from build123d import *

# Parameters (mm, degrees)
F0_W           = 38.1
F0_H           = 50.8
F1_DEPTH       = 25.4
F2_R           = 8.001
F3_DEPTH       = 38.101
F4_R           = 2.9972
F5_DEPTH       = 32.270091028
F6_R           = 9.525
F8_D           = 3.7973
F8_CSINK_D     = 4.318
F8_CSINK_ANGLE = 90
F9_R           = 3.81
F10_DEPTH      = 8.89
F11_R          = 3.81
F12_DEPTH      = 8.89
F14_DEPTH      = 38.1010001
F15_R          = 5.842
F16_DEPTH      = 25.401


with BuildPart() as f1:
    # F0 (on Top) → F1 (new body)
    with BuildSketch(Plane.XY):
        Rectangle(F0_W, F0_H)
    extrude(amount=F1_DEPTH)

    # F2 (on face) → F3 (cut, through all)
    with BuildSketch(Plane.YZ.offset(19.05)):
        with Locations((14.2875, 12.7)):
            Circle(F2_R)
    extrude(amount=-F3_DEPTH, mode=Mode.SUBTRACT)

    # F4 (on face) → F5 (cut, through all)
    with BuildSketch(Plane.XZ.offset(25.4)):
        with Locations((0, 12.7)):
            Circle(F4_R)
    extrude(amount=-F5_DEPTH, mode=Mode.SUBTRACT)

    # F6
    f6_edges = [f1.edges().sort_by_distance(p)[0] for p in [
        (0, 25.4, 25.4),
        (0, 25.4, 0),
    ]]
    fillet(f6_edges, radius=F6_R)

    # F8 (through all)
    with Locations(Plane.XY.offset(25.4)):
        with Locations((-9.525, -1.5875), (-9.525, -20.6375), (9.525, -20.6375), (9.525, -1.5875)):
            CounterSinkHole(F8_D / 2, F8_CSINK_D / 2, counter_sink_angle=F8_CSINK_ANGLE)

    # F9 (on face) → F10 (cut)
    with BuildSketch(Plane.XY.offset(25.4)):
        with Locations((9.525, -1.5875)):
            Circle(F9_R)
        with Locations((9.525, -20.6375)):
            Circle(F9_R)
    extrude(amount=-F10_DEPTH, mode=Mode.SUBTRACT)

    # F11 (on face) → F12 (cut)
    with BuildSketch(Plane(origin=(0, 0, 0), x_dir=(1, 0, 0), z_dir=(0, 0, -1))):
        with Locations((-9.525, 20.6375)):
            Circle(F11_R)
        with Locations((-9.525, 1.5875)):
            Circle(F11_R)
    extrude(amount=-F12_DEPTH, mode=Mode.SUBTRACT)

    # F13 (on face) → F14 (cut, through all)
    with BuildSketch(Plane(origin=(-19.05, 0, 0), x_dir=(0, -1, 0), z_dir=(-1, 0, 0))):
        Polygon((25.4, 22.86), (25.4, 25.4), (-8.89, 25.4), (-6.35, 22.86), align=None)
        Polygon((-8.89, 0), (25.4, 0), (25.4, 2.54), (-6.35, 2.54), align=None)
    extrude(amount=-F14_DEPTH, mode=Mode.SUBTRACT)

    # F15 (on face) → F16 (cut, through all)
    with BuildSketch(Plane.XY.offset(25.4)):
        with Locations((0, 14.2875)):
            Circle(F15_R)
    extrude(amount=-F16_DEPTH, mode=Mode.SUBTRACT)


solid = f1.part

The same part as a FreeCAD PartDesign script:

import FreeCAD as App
import Part
import Sketcher
Q = App.Units.Quantity


def edges_at(feature, points):
    """Names of the edges that pass closest to the given points."""
    edges = feature.Shape.Edges
    near = lambda p: min(range(len(edges)), key=lambda i: edges[i].distToShape(Part.Vertex(*p))[0])
    return sorted({f"Edge{near(p) + 1}" for p in points})

doc = App.newDocument("Part")
body = doc.addObject("PartDesign::Body", "Body")

# Sketch on XY plane
sketch1 = doc.addObject("Sketcher::SketchObject", "Sketch")
body.addObject(sketch1)
sketch1.AttachmentSupport = (doc.XY_Plane, [""])
sketch1.MapMode = "FlatFace"
sketch1.addGeometry([
    Part.LineSegment(App.Vector(-19.05, 25.4, 0), App.Vector(-19.05, -25.4, 0)),
    Part.LineSegment(App.Vector(-19.05, -25.4, 0), App.Vector(19.05, -25.4, 0)),
    Part.LineSegment(App.Vector(19.05, -25.4, 0), App.Vector(19.05, 25.4, 0)),
    Part.LineSegment(App.Vector(19.05, 25.4, 0), App.Vector(-19.05, 25.4, 0)),
], False)
sketch1.addConstraint([
    Sketcher.Constraint("Coincident", 0, 2, 1, 1),
    Sketcher.Constraint("Coincident", 1, 2, 2, 1),
    Sketcher.Constraint("Coincident", 2, 2, 3, 1),
    Sketcher.Constraint("Coincident", 3, 2, 0, 1),
    Sketcher.Constraint("Vertical", 0),
    Sketcher.Constraint("Horizontal", 1),
    Sketcher.Constraint("Vertical", 2),
    Sketcher.Constraint("Horizontal", 3),
    Sketcher.Constraint("Symmetric", 0, 2, 2, 2, -1, 1),
    Sketcher.Constraint("DistanceY", 0, 2, 0, 1, Q("2 in")),
    Sketcher.Constraint("DistanceX", 1, 1, 1, 2, Q("1.5 in")),
])
pad1 = doc.addObject("PartDesign::Pad", "Pad")
body.addObject(pad1)
pad1.Profile = sketch1
pad1.Length = Q("1 in")

# Sketch on YZ plane
sketch2 = doc.addObject("Sketcher::SketchObject", "Sketch001")
body.addObject(sketch2)
sketch2.AttachmentSupport = (doc.YZ_Plane, [""])
sketch2.MapMode = "FlatFace"
sketch2.AttachmentOffset = App.Placement(App.Vector(0, 0, 0.75 * 25.4), App.Rotation())
sketch2.addGeometry(Part.Circle(App.Vector(14.2875, 12.7, 0), App.Vector(0, 0, 1), 8.001), False)
sketch2.addConstraint([
    Sketcher.Constraint("Diameter", 0, Q("0.63 in")),
    Sketcher.Constraint("DistanceY", -1, 1, 0, 3, Q("0.5 in")),
    Sketcher.Constraint("DistanceX", -1, 1, 0, 3, Q("0.5625 in")),
])
pocket1 = doc.addObject("PartDesign::Pocket", "Pocket")
body.addObject(pocket1)
pocket1.Profile = sketch2
pocket1.Type = "ThroughAll"

# Sketch on XZ plane
sketch3 = doc.addObject("Sketcher::SketchObject", "Sketch002")
body.addObject(sketch3)
sketch3.AttachmentSupport = (doc.XZ_Plane, [""])
sketch3.MapMode = "FlatFace"
sketch3.AttachmentOffset = App.Placement(App.Vector(0, 0, 1 * 25.4), App.Rotation())
sketch3.addGeometry(Part.Circle(App.Vector(0, 12.7, 0), App.Vector(0, 0, 1), 2.9972), False)
sketch3.addConstraint([
    Sketcher.Constraint("PointOnObject", 0, 3, -2),
    Sketcher.Constraint("Diameter", 0, Q("0.236 in")),
    Sketcher.Constraint("DistanceY", -1, 1, 0, 3, Q("0.5 in")),
])
pocket2 = doc.addObject("PartDesign::Pocket", "Pocket001")
body.addObject(pocket2)
pocket2.Profile = sketch3
pocket2.Length = 32.270091
doc.recompute()

fillet = doc.addObject("PartDesign::Fillet", "Fillet")
body.addObject(fillet)
fillet.Base = (pocket2, edges_at(pocket2, [(0, 25.4, 25.4), (0, 25.4, 0)]))
fillet.Radius = Q("0.375 in")

# Sketch on XY plane
sketch4 = doc.addObject("Sketcher::SketchObject", "Sketch003")
body.addObject(sketch4)
sketch4.AttachmentSupport = (doc.XY_Plane, [""])
sketch4.MapMode = "FlatFace"
sketch4.AttachmentOffset = App.Placement(App.Vector(0, 0, 1 * 25.4), App.Rotation())
sketch4.addGeometry([
    Part.Circle(App.Vector(-9.525, -1.5875, 0), App.Vector(0, 0, 1), 1.89865),
    Part.Circle(App.Vector(-9.525, -20.6375, 0), App.Vector(0, 0, 1), 1.89865),
    Part.Circle(App.Vector(9.525, -20.6375, 0), App.Vector(0, 0, 1), 1.89865),
    Part.Circle(App.Vector(9.525, -1.5875, 0), App.Vector(0, 0, 1), 1.89865),
], False)
sketch4.addConstraint([
    Sketcher.Constraint("Equal", 0, 1),
    Sketcher.Constraint("Equal", 1, 2),
    Sketcher.Constraint("Equal", 2, 3),
    Sketcher.Constraint("Symmetric", 1, 3, 2, 3, -2),
    Sketcher.Constraint("Symmetric", 0, 3, 3, 3, -2),
    Sketcher.Constraint("Vertical", 0, 3, 1, 3),
    Sketcher.Constraint("Diameter", 0, Q("0.1495 in")),
    Sketcher.Constraint("DistanceY", 1, 3, 0, 3, Q("0.75 in")),
    Sketcher.Constraint("DistanceX", 1, 3, 2, 3, Q("0.75 in")),
    Sketcher.Constraint("DistanceY", 0, 3, -1, 1, Q("0.0625 in")),
])
doc.recompute()
hole = doc.addObject("PartDesign::Hole", "Hole")
body.addObject(hole)
hole.Profile = sketch4
hole.ThreadType = "None"
hole.Diameter = Q("0.1495 in")
hole.DepthType = "ThroughAll"
hole.HoleCutType = "Countersink"
hole.HoleCutDiameter = Q("0.17 in")
hole.HoleCutCountersinkAngle = 90

# Sketch on XY plane
sketch5 = doc.addObject("Sketcher::SketchObject", "Sketch004")
body.addObject(sketch5)
sketch5.AttachmentSupport = (doc.XY_Plane, [""])
sketch5.MapMode = "FlatFace"
sketch5.AttachmentOffset = App.Placement(App.Vector(0, 0, 1 * 25.4), App.Rotation())
sketch5.addGeometry([
    Part.Circle(App.Vector(9.525, -1.5875, 0), App.Vector(0, 0, 1), 3.81),
    Part.Circle(App.Vector(9.525, -20.6375, 0), App.Vector(0, 0, 1), 3.81),
], False)
sketch5.addConstraint([
    Sketcher.Constraint("Equal", 0, 1),
    Sketcher.Constraint("Vertical", 0, 3, 1, 3),
    Sketcher.Constraint("Diameter", 0, Q("0.3 in")),
    Sketcher.Constraint("DistanceY", 1, 3, 0, 3, Q("0.75 in")),
    Sketcher.Constraint("DistanceX", -1, 1, 0, 3, Q("0.375 in")),
    Sketcher.Constraint("DistanceY", 0, 3, -1, 1, Q("0.0625 in")),
])
pocket3 = doc.addObject("PartDesign::Pocket", "Pocket002")
body.addObject(pocket3)
pocket3.Profile = sketch5
pocket3.Length = Q("0.35 in")

# Sketch on XY plane
sketch6 = doc.addObject("Sketcher::SketchObject", "Sketch005")
body.addObject(sketch6)
sketch6.AttachmentSupport = (doc.XY_Plane, [""])
sketch6.MapMode = "FlatFace"
sketch6.addGeometry([
    Part.Circle(App.Vector(-9.525, -20.6375, 0), App.Vector(0, 0, 1), 3.81),
    Part.Circle(App.Vector(-9.525, -1.5875, 0), App.Vector(0, 0, 1), 3.81),
], False)
sketch6.addConstraint([
    Sketcher.Constraint("Equal", 0, 1),
    Sketcher.Constraint("Vertical", 0, 3, 1, 3),
    Sketcher.Constraint("Diameter", 0, Q("0.3 in")),
    Sketcher.Constraint("DistanceY", 0, 3, 1, 3, Q("0.75 in")),
    Sketcher.Constraint("DistanceX", 0, 3, -1, 1, Q("0.375 in")),
    Sketcher.Constraint("DistanceY", 0, 3, -1, 1, Q("0.8125 in")),
])
pocket4 = doc.addObject("PartDesign::Pocket", "Pocket003")
body.addObject(pocket4)
pocket4.Profile = sketch6
pocket4.Length = Q("0.35 in")
pocket4.Reversed = True

# Sketch on YZ plane
sketch7 = doc.addObject("Sketcher::SketchObject", "Sketch006")
body.addObject(sketch7)
sketch7.AttachmentSupport = (doc.YZ_Plane, [""])
sketch7.MapMode = "FlatFace"
sketch7.AttachmentOffset = App.Placement(App.Vector(0, 0, -0.75 * 25.4), App.Rotation())
sketch7.addGeometry([
    Part.LineSegment(App.Vector(-25.4, 22.86, 0), App.Vector(-25.4, 25.4, 0)),  # 0
    Part.LineSegment(App.Vector(-25.4, 25.4, 0), App.Vector(8.89, 25.4, 0)),  # 1
    Part.LineSegment(App.Vector(8.89, 25.4, 0), App.Vector(6.35, 22.86, 0)),  # 2
    Part.LineSegment(App.Vector(6.35, 22.86, 0), App.Vector(-25.4, 22.86, 0)),  # 3
    Part.LineSegment(App.Vector(8.89, 0, 0), App.Vector(-25.4, 0, 0)),  # 4
    Part.LineSegment(App.Vector(-25.4, 0, 0), App.Vector(-25.4, 2.54, 0)),  # 5
    Part.LineSegment(App.Vector(-25.4, 2.54, 0), App.Vector(6.35, 2.54, 0)),  # 6
    Part.LineSegment(App.Vector(6.35, 2.54, 0), App.Vector(8.89, 0, 0)),  # 7
], False)
sketch7.addConstraint([
    Sketcher.Constraint("Coincident", 0, 2, 1, 1),
    Sketcher.Constraint("Coincident", 1, 2, 2, 1),
    Sketcher.Constraint("Coincident", 2, 2, 3, 1),
    Sketcher.Constraint("Coincident", 3, 2, 0, 1),
    Sketcher.Constraint("Coincident", 4, 2, 5, 1),
    Sketcher.Constraint("Coincident", 5, 2, 6, 1),
    Sketcher.Constraint("Coincident", 6, 2, 7, 1),
    Sketcher.Constraint("Coincident", 7, 2, 4, 1),
    Sketcher.Constraint("Vertical", 0),
    Sketcher.Constraint("Horizontal", 1),
    Sketcher.Constraint("Horizontal", 3),
    Sketcher.Constraint("Horizontal", 4),
    Sketcher.Constraint("Vertical", 5),
    Sketcher.Constraint("Horizontal", 6),
    Sketcher.Constraint("PointOnObject", 4, 2, -1),
    Sketcher.Constraint("Perpendicular", 2, 7),
    Sketcher.Constraint("Vertical", 3, 2, 4, 2),
    Sketcher.Constraint("Vertical", 2, 2, 6, 2),
    Sketcher.Constraint("Vertical", 1, 2, 7, 2),
    Sketcher.Constraint("Equal", 0, 5),
    Sketcher.Constraint("DistanceY", 0, 1, 0, 2, Q("0.1 in")),
    Sketcher.Constraint("DistanceX", 0, 2, -1, 1, Q("1 in")),
    Sketcher.Constraint("DistanceY", -1, 1, 0, 2, Q("1 in")),
    Sketcher.Constraint("DistanceX", 1, 1, 1, 2, Q("1.35 in")),
])
pocket5 = doc.addObject("PartDesign::Pocket", "Pocket004")
body.addObject(pocket5)
pocket5.Profile = sketch7
pocket5.Type = "ThroughAll"
pocket5.Reversed = True

# Sketch on XY plane
sketch8 = doc.addObject("Sketcher::SketchObject", "Sketch007")
body.addObject(sketch8)
sketch8.AttachmentSupport = (doc.XY_Plane, [""])
sketch8.MapMode = "FlatFace"
sketch8.AttachmentOffset = App.Placement(App.Vector(0, 0, 1 * 25.4), App.Rotation())
sketch8.addGeometry(Part.Circle(App.Vector(0, 14.2875, 0), App.Vector(0, 0, 1), 5.842), False)
sketch8.addConstraint([
    Sketcher.Constraint("PointOnObject", 0, 3, -2),
    Sketcher.Constraint("Diameter", 0, Q("0.46 in")),
    Sketcher.Constraint("DistanceY", -1, 1, 0, 3, Q("0.5625 in")),
])
pocket6 = doc.addObject("PartDesign::Pocket", "Pocket005")
body.addObject(pocket6)
pocket6.Profile = sketch8
pocket6.Type = "ThroughAll"

doc.recompute()
